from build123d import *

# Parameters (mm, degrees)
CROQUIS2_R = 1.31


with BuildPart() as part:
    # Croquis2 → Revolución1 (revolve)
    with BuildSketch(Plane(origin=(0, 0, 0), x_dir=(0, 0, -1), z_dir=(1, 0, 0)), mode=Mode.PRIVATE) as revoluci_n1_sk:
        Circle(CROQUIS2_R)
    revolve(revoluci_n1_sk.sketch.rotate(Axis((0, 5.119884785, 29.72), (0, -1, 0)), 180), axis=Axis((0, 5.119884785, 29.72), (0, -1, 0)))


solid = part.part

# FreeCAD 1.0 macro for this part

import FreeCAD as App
import Part
import Sketcher
from FreeCAD import Vector
Q = App.Units.Quantity

doc = App.newDocument("Part")
params = doc.addObject("Spreadsheet::Sheet", "Params")
for row, (alias, value) in enumerate([
    ("sketch1_diameter", "2.62 mm"),
    ("sketch1_width", "10 mm"),
    ("revolution_angle", "360 deg"),
], start=1):
    params.set(f"A{row}", alias)
    params.set(f"B{row}", "=" + value)
    params.setAlias(f"B{row}", alias)

body = doc.addObject("PartDesign::Body", "Body")

sketch1 = body.newObject("Sketcher::SketchObject", "Sketch")
sketch1.AttachmentSupport = (doc.getObject("YZ_Plane"), [""])
sketch1.MapMode = "FlatFace"
sketch1.addGeometry(Part.Circle(Vector(0, 0, 0), Vector(0, 0, 1), 1.31), False)
sketch1.addGeometry(Part.LineSegment(Vector(0, 29.72, 0), Vector(-10, 29.72, 0)), True)
sketch1.addConstraint(Sketcher.Constraint("Horizontal", 1))
sketch1.addConstraint(Sketcher.Constraint("Coincident", 0, 3, -1, 1))
sketch1.addConstraint(Sketcher.Constraint("PointOnObject", 1, 1, -2))
sketch1.addConstraint(Sketcher.Constraint("Diameter", 0, Q("2.62 mm")))
sketch1.addConstraint(Sketcher.Constraint("DistanceX", 1, 2, 1, 1, Q("10 mm")))
sketch1.addConstraint(Sketcher.Constraint("DistanceY", -1, 1, 1, 1, Q("29.72 mm")))
sketch1.setExpression("Constraints[3]", "Params.sketch1_diameter")
sketch1.setExpression("Constraints[4]", "Params.sketch1_width")
revolution = body.newObject("PartDesign::Revolution", "Revolution")
revolution.Profile = sketch1
revolution.ReferenceAxis = (sketch1, ["Axis0"])
revolution.setExpression("Angle", "Params.revolution_angle")

doc.recompute()
